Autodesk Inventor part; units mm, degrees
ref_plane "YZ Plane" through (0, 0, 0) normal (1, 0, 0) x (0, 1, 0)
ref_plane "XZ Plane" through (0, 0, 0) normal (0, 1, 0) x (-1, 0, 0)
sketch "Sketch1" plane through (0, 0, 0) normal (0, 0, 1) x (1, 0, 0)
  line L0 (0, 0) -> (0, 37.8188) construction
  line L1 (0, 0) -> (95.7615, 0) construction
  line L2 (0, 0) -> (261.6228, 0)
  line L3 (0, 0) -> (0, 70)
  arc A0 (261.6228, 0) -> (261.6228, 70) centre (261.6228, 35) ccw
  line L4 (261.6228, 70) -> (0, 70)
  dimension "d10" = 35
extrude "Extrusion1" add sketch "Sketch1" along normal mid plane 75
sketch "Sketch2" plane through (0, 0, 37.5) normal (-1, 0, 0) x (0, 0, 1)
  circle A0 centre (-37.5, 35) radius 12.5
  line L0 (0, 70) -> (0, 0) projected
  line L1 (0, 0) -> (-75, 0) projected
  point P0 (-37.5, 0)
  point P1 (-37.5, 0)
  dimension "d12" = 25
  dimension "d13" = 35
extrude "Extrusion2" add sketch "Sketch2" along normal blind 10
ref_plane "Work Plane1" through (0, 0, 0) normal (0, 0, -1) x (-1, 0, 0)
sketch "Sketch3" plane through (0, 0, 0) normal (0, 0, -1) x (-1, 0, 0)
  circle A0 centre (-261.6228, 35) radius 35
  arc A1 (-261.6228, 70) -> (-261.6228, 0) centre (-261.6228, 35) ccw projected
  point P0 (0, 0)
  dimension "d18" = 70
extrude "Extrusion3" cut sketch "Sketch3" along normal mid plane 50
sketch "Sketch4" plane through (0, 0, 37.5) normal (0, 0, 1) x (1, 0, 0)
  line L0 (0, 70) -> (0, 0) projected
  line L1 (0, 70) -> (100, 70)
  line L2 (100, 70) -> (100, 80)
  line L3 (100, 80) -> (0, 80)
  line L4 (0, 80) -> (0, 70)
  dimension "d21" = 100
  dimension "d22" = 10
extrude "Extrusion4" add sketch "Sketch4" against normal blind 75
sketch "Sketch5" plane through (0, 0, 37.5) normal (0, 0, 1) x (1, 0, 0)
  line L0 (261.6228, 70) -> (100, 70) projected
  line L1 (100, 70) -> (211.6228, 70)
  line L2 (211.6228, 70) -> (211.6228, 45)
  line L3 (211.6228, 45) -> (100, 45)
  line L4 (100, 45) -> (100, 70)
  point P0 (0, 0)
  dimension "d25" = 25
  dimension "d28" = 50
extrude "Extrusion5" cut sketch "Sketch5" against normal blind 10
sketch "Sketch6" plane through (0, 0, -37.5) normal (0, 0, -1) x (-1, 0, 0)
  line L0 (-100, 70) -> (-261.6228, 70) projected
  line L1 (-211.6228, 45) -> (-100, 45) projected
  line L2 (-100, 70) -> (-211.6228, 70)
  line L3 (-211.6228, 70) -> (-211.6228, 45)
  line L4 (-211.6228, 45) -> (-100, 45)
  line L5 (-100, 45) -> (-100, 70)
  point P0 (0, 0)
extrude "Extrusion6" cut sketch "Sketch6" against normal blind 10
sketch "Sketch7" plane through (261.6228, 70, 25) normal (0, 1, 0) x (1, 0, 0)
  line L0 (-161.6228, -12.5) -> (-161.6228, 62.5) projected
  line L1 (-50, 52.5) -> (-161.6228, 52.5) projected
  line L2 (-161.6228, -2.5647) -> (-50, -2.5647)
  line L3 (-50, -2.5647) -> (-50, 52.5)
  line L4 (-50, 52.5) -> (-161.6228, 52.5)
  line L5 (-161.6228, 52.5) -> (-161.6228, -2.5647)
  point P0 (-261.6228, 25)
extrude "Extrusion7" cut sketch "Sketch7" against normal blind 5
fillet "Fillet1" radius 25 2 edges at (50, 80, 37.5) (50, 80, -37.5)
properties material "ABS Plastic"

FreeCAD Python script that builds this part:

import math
import FreeCAD as App
import Part
import Sketcher

V = App.Vector


def edges_at(feature, points):
    """Names of the edges that pass closest to the given points."""
    edges = feature.Shape.Edges
    near = lambda p: min(range(len(edges)), key=lambda i: edges[i].distToShape(Part.Vertex(*p))[0])
    return sorted({f"Edge{near(p) + 1}" for p in points})

doc = App.newDocument("Part")
params = doc.addObject("Spreadsheet::Sheet", "Params")
for row, (alias, value) in enumerate([
    ("sketch1_radius", "35 mm"),
    ("pad1_length", "75 mm"),
    ("sketch2_diameter", "25 mm"),
    ("pad2_length", "10 mm"),
    ("sketch3_diameter", "70 mm"),
    ("pocket1_length", "50 mm"),
    ("sketch4_width", "100 mm"),
    ("sketch4_height", "10 mm"),
    ("pad3_length", "75 mm"),
    ("sketch5_height", "25 mm"),
    ("pocket2_length", "10 mm"),
    ("sketch6_height", "25 mm"),
    ("pocket3_length", "10 mm"),
    ("pocket4_length", "5 mm"),
    ("fillet_radius", "25 mm"),
], start=1):
    params.set(f"A{row}", alias)
    params.set(f"B{row}", "=" + value)
    params.setAlias(f"B{row}", alias)

body = doc.addObject("PartDesign::Body", "Body")

sketch1 = body.newObject("Sketcher::SketchObject", "Sketch")
sketch1.AttachmentSupport = (doc.getObject("XY_Plane"), [""])
sketch1.MapMode = "FlatFace"
sketch1.addGeometry(Part.LineSegment(V(0, 70, 0), V(0, 0, 0)), False)
sketch1.addGeometry(Part.LineSegment(V(0, 0, 0), V(262, 0, 0)), False)
sketch1.addGeometry(Part.ArcOfCircle(Part.Circle(V(262, 35, 0), V(0, 0, 1), 35), math.radians(-90), math.radians(90)), False)
sketch1.addGeometry(Part.LineSegment(V(262, 70, 0), V(0, 70, 0)), False)
sketch1.addConstraint(Sketcher.Constraint("Coincident", 0, 2, 1, 1))
sketch1.addConstraint(Sketcher.Constraint("Tangent", 1, 2, 2, 1))
sketch1.addConstraint(Sketcher.Constraint("Tangent", 2, 2, 3, 1))
sketch1.addConstraint(Sketcher.Constraint("Coincident", 3, 2, 0, 1))
sketch1.addConstraint(Sketcher.Constraint("Vertical", 0))
sketch1.addConstraint(Sketcher.Constraint("Horizontal", 1))
sketch1.addConstraint(Sketcher.Constraint("Horizontal", 3))
sketch1.addConstraint(Sketcher.Constraint("Coincident", 0, 2, -1, 1))
sketch1.addConstraint(Sketcher.Constraint("Radius", 2, 35.0))
sketch1.addConstraint(Sketcher.Constraint("DistanceX", 1, 1, 1, 2, 261.6228))
sketch1.setExpression("Constraints[8]", "Params.sketch1_radius")
pad1 = body.newObject("PartDesign::Pad", "Pad")
pad1.Profile = sketch1
pad1.setExpression("Length", "Params.pad1_length")
pad1.Midplane = True

sketch2 = body.newObject("Sketcher::SketchObject", "Sketch001")
sketch2.AttachmentSupport = (doc.getObject("YZ_Plane"), [""])
sketch2.MapMode = "FlatFace"
sketch2.addGeometry(Part.Circle(V(35, 0, 0), V(0, 0, 1), 12), False)
sketch2.addConstraint(Sketcher.Constraint("PointOnObject", 0, 3, -1))
sketch2.addConstraint(Sketcher.Constraint("Diameter", 0, 25.0))
sketch2.addConstraint(Sketcher.Constraint("DistanceX", -1, 1, 0, 3, 35.0))
sketch2.setExpression("Constraints[1]", "Params.sketch2_diameter")
pad2 = body.newObject("PartDesign::Pad", "Pad001")
pad2.Profile = sketch2
pad2.setExpression("Length", "Params.pad2_length")
pad2.Reversed = True

sketch3 = body.newObject("Sketcher::SketchObject", "Sketch002")
sketch3.AttachmentSupport = (doc.getObject("XY_Plane"), [""])
sketch3.MapMode = "FlatFace"
sketch3.addGeometry(Part.Circle(V(262, 35, 0), V(0, 0, 1), 35), False)
sketch3.addConstraint(Sketcher.Constraint("Diameter", 0, 70.0))
sketch3.addConstraint(Sketcher.Constraint("DistanceY", -1, 1, 0, 3, 35.0))
sketch3.addConstraint(Sketcher.Constraint("DistanceX", -1, 1, 0, 3, 261.6228))
sketch3.setExpression("Constraints[0]", "Params.sketch3_diameter")
pocket1 = body.newObject("PartDesign::Pocket", "Pocket")
pocket1.Profile = sketch3
pocket1.setExpression("Length", "Params.pocket1_length")
pocket1.Midplane = True

sketch4 = body.newObject("Sketcher::SketchObject", "Sketch003")
sketch4.AttachmentSupport = (doc.getObject("XY_Plane"), [""])
sketch4.MapMode = "FlatFace"
sketch4.AttachmentOffset = App.Placement(V(0, 0, 37.5), App.Rotation())
sketch4.addGeometry(Part.LineSegment(V(0, 80, 0), V(0, 70, 0)), False)
sketch4.addGeometry(Part.LineSegment(V(0, 70, 0), V(100, 70, 0)), False)
sketch4.addGeometry(Part.LineSegment(V(100, 70, 0), V(100, 80, 0)), False)
sketch4.addGeometry(Part.LineSegment(V(100, 80, 0), V(0, 80, 0)), False)
sketch4.addConstraint(Sketcher.Constraint("Coincident", 0, 2, 1, 1))
sketch4.addConstraint(Sketcher.Constraint("Coincident", 1, 2, 2, 1))
sketch4.addConstraint(Sketcher.Constraint("Coincident", 2, 2, 3, 1))
sketch4.addConstraint(Sketcher.Constraint("Coincident", 3, 2, 0, 1))
sketch4.addConstraint(Sketcher.Constraint("Vertical", 0))
sketch4.addConstraint(Sketcher.Constraint("Horizontal", 1))
sketch4.addConstraint(Sketcher.Constraint("Vertical", 2))
sketch4.addConstraint(Sketcher.Constraint("Horizontal", 3))
sketch4.addConstraint(Sketcher.Constraint("PointOnObject", 0, 2, -2))
sketch4.addConstraint(Sketcher.Constraint("DistanceX", 1, 1, 1, 2, 100.0))
sketch4.addConstraint(Sketcher.Constraint("DistanceY", 0, 2, 0, 1, 10.0))
sketch4.addConstraint(Sketcher.Constraint("DistanceY", -1, 1, 0, 2, 70.0))
sketch4.setExpression("Constraints[9]", "Params.sketch4_width")
sketch4.setExpression("Constraints[10]", "Params.sketch4_height")
pad3 = body.newObject("PartDesign::Pad", "Pad002")
pad3.Profile = sketch4
pad3.setExpression("Length", "Params.pad3_length")
pad3.Reversed = True

sketch5 = body.newObject("Sketcher::SketchObject", "Sketch004")
sketch5.AttachmentSupport = (doc.getObject("XY_Plane"), [""])
sketch5.MapMode = "FlatFace"
sketch5.AttachmentOffset = App.Placement(V(0, 0, 37.5), App.Rotation())
sketch5.addGeometry(Part.LineSegment(V(212, 45, 0), V(212, 70, 0)), False)
sketch5.addGeometry(Part.LineSegment(V(212, 70, 0), V(100, 70, 0)), False)
sketch5.addGeometry(Part.LineSegment(V(100, 70, 0), V(100, 45, 0)), False)
sketch5.addGeometry(Part.LineSegment(V(100, 45, 0), V(212, 45, 0)), False)
sketch5.addConstraint(Sketcher.Constraint("Coincident", 0, 2, 1, 1))
sketch5.addConstraint(Sketcher.Constraint("Coincident", 1, 2, 2, 1))
sketch5.addConstraint(Sketcher.Constraint("Coincident", 2, 2, 3, 1))
sketch5.addConstraint(Sketcher.Constraint("Coincident", 3, 2, 0, 1))
sketch5.addConstraint(Sketcher.Constraint("Vertical", 0))
sketch5.addConstraint(Sketcher.Constraint("Horizontal", 1))
sketch5.addConstraint(Sketcher.Constraint("Vertical", 2))
sketch5.addConstraint(Sketcher.Constraint("Horizontal", 3))
sketch5.addConstraint(Sketcher.Constraint("DistanceY", 0, 1, 0, 2, 25.0))
sketch5.addConstraint(Sketcher.Constraint("DistanceY", -1, 1, 0, 2, 70.0))
sketch5.addConstraint(Sketcher.Constraint("DistanceX", -1, 1, 1, 2, 100.0))
sketch5.addConstraint(Sketcher.Constraint("DistanceX", 1, 2, 1, 1, 111.6228))
sketch5.setExpression("Constraints[8]", "Params.sketch5_height")
pocket2 = body.newObject("PartDesign::Pocket", "Pocket001")
pocket2.Profile = sketch5
pocket2.setExpression("Length", "Params.pocket2_length")

sketch6 = body.newObject("Sketcher::SketchObject", "Sketch005")
sketch6.AttachmentSupport = (doc.getObject("XY_Plane"), [""])
sketch6.MapMode = "FlatFace"
sketch6.AttachmentOffset = App.Placement(V(0, 0, -37.5), App.Rotation())
sketch6.addGeometry(Part.LineSegment(V(100, 45, 0), V(100, 70, 0)), False)
sketch6.addGeometry(Part.LineSegment(V(100, 70, 0), V(212, 70, 0)), False)
sketch6.addGeometry(Part.LineSegment(V(212, 70, 0), V(212, 45, 0)), False)
sketch6.addGeometry(Part.LineSegment(V(212, 45, 0), V(100, 45, 0)), False)
sketch6.addConstraint(Sketcher.Constraint("Coincident", 0, 2, 1, 1))
sketch6.addConstraint(Sketcher.Constraint("Coincident", 1, 2, 2, 1))
sketch6.addConstraint(Sketcher.Constraint("Coincident", 2, 2, 3, 1))
sketch6.addConstraint(Sketcher.Constraint("Coincident", 3, 2, 0, 1))
sketch6.addConstraint(Sketcher.Constraint("Vertical", 0))
sketch6.addConstraint(Sketcher.Constraint("Horizontal", 1))
sketch6.addConstraint(Sketcher.Constraint("Vertical", 2))
sketch6.addConstraint(Sketcher.Constraint("Horizontal", 3))
sketch6.addConstraint(Sketcher.Constraint("DistanceY", 0, 1, 0, 2, 25.0))
sketch6.addConstraint(Sketcher.Constraint("DistanceX", -1, 1, 0, 2, 100.0))
sketch6.addConstraint(Sketcher.Constraint("DistanceY", -1, 1, 0, 2, 70.0))
sketch6.addConstraint(Sketcher.Constraint("DistanceX", 1, 1, 1, 2, 111.6228))
sketch6.setExpression("Constraints[8]", "Params.sketch6_height")
pocket3 = body.newObject("PartDesign::Pocket", "Pocket002")
pocket3.Profile = sketch6
pocket3.setExpression("Length", "Params.pocket3_length")
pocket3.Reversed = True

sketch7 = body.newObject("Sketcher::SketchObject", "Sketch006")
sketch7.AttachmentSupport = (doc.getObject("XZ_Plane"), [""])
sketch7.MapMode = "FlatFace"
sketch7.AttachmentOffset = App.Placement(V(0, 0, -70), App.Rotation())
sketch7.addGeometry(Part.LineSegment(V(100, -28, 0), V(100, 28, 0)), False)
sketch7.addGeometry(Part.LineSegment(V(100, 28, 0), V(212, 28, 0)), False)
sketch7.addGeometry(Part.LineSegment(V(212, 28, 0), V(212, -28, 0)), False)
sketch7.addGeometry(Part.LineSegment(V(212, -28, 0), V(100, -28, 0)), False)
sketch7.addConstraint(Sketcher.Constraint("Coincident", 0, 2, 1, 1))
sketch7.addConstraint(Sketcher.Constraint("Coincident", 1, 2, 2, 1))
sketch7.addConstraint(Sketcher.Constraint("Coincident", 2, 2, 3, 1))
sketch7.addConstraint(Sketcher.Constraint("Coincident", 3, 2, 0, 1))
sketch7.addConstraint(Sketcher.Constraint("Vertical", 0))
sketch7.addConstraint(Sketcher.Constraint("Horizontal", 1))
sketch7.addConstraint(Sketcher.Constraint("Vertical", 2))
sketch7.addConstraint(Sketcher.Constraint("Horizontal", 3))
sketch7.addConstraint(Sketcher.Constraint("DistanceX", -1, 1, 0, 2, 100.0))
sketch7.addConstraint(Sketcher.Constraint("DistanceY", 2, 2, -1, 1, 27.5))
sketch7.addConstraint(Sketcher.Constraint("DistanceX", 1, 1, 1, 2, 111.6228))
sketch7.addConstraint(Sketcher.Constraint("DistanceY", 0, 1, 0, 2, 55.0647))
pocket4 = body.newObject("PartDesign::Pocket", "Pocket003")
pocket4.Profile = sketch7
pocket4.setExpression("Length", "Params.pocket4_length")
pocket4.Reversed = True
doc.recompute()

fillet = body.newObject("PartDesign::Fillet", "Fillet")
fillet.Base = (pocket4, edges_at(pocket4, [(50, 80, 37.5), (50, 80, -37.5)]))
fillet.setExpression("Radius", "Params.fillet_radius")

doc.recompute()
